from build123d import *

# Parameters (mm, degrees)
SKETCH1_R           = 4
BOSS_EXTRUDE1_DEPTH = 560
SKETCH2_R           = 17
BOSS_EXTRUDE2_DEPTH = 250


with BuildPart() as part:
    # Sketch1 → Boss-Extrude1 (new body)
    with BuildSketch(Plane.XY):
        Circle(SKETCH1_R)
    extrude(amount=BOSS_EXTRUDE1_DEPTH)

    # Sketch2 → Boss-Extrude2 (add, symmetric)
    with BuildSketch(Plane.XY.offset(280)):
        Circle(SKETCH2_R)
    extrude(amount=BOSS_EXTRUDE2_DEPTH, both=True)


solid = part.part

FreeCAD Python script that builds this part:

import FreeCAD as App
import Part
import Sketcher
Q = App.Units.Quantity

doc = App.newDocument("Part")
body = doc.addObject("PartDesign::Body", "Body")

# Sketch on XY plane
sketch1 = body.newObject("Sketcher::SketchObject", "Sketch")
sketch1.AttachmentSupport = (doc.getObject("XY_Plane"), [""])
sketch1.MapMode = "FlatFace"
sketch1.addGeometry(Part.Circle(App.Vector(0, 0, 0), App.Vector(0, 0, 1), 4), False)
sketch1.addConstraint([
    Sketcher.Constraint("Coincident", 0, 3, -1, 1),
    Sketcher.Constraint("Diameter", 0, Q("8 mm")),
])
pad1 = body.newObject("PartDesign::Pad", "Pad")
pad1.Profile = sketch1
pad1.Length = 560

# Sketch on XY plane
sketch2 = body.newObject("Sketcher::SketchObject", "Sketch001")
sketch2.AttachmentSupport = (doc.getObject("XY_Plane"), [""])
sketch2.MapMode = "FlatFace"
sketch2.AttachmentOffset = App.Placement(App.Vector(0, 0, 280), App.Rotation())
sketch2.addGeometry(Part.Circle(App.Vector(0, 0, 0), App.Vector(0, 0, 1), 17), False)
sketch2.addConstraint([
    Sketcher.Constraint("Coincident", 0, 3, -1, 1),
    Sketcher.Constraint("Diameter", 0, Q("34 mm")),
])
pad2 = body.newObject("PartDesign::Pad", "Pad001")
pad2.Profile = sketch2
pad2.Length = 500
pad2.Midplane = True

doc.recompute()
